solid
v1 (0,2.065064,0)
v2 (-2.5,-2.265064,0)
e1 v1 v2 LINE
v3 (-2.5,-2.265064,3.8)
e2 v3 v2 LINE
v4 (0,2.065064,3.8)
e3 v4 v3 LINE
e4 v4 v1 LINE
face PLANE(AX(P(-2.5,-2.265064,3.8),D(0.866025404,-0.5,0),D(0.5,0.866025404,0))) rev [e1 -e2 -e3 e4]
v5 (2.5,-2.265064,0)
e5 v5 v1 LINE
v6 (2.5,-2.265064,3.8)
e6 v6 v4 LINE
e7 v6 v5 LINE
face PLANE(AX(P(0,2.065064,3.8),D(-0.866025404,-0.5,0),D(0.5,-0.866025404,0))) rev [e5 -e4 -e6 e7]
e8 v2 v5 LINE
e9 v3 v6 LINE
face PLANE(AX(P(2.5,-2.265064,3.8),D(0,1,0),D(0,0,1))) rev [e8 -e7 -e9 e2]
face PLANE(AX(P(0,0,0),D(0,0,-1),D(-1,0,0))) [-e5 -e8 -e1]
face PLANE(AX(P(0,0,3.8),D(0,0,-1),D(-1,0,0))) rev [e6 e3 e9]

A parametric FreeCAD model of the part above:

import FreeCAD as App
import Part
import Sketcher
from FreeCAD import Vector
Q = App.Units.Quantity


def add_polygon(sketch, points):
    """Adds a closed chain of lines whose ends are joined by coincident constraints."""
    first, n = sketch.GeometryCount, len(points)
    for a, b in zip(points, points[1:] + points[:1]):
        sketch.addGeometry(Part.LineSegment(App.Vector(*a, 0), App.Vector(*b, 0)), False)
    for i in range(n):
        sketch.addConstraint(Sketcher.Constraint("Coincident", first + i, 2, first + (i + 1) % n, 1))

doc = App.newDocument("Part")
body = doc.addObject("PartDesign::Body", "Body")

# Sketch on XY plane
sketch1 = doc.addObject("Sketcher::SketchObject", "Sketch")
body.addObject(sketch1)
sketch1.AttachmentSupport = (doc.XY_Plane, [""])
sketch1.MapMode = "FlatFace"
add_polygon(sketch1, [(0, 2.065064), (-2.5, -2.265064), (2.5, -2.265064)])  # lines 0-2
sketch1.addConstraint([
    Sketcher.Constraint("Horizontal", 1),
    Sketcher.Constraint("PointOnObject", 2, 2, -2),
    Sketcher.Constraint("Equal", 0, 2),
    Sketcher.Constraint("DistanceX", 1, 1, 1, 2, 5.0),
    Sketcher.Constraint("Angle", 0, Q("-120 deg")),
    Sketcher.Constraint("DistanceY", 0, 2, -1, 1, 2.265064),
])
pad1 = doc.addObject("PartDesign::Pad", "Pad")
body.addObject(pad1)
pad1.Profile = sketch1
pad1.Length = 3.8

doc.recompute()
